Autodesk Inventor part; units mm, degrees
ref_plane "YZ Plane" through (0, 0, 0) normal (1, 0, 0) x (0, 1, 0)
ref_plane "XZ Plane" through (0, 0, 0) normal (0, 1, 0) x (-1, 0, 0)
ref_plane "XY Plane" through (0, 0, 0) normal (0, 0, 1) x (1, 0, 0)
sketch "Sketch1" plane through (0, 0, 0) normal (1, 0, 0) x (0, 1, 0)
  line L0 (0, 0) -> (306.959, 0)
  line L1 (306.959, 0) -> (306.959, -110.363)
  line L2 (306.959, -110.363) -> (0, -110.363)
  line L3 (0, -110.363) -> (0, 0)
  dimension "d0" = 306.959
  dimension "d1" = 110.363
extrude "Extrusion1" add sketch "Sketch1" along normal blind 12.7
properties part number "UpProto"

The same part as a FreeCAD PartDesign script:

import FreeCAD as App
import Part
import Sketcher

V = App.Vector
Q = App.Units.Quantity


def add_polygon(sketch, points):
    """Adds a closed chain of lines whose ends are joined by coincident constraints."""
    first, n = sketch.GeometryCount, len(points)
    for a, b in zip(points, points[1:] + points[:1]):
        sketch.addGeometry(Part.LineSegment(App.Vector(*a, 0), App.Vector(*b, 0)), False)
    for i in range(n):
        sketch.addConstraint(Sketcher.Constraint("Coincident", first + i, 2, first + (i + 1) % n, 1))

doc = App.newDocument("Part")
body = doc.addObject("PartDesign::Body", "Body")

sketch1 = doc.addObject("Sketcher::SketchObject", "Sketch")
body.addObject(sketch1)
sketch1.AttachmentSupport = (doc.YZ_Plane, [""])
sketch1.MapMode = "FlatFace"
add_polygon(sketch1, [(306.959, 0), (0, 0), (0, -110.363), (306.959, -110.363)])
sketch1.addConstraint([
    Sketcher.Constraint("Horizontal", 0),
    Sketcher.Constraint("Vertical", 1),
    Sketcher.Constraint("Horizontal", 2),
    Sketcher.Constraint("Vertical", 3),
    Sketcher.Constraint("Coincident", 0, 2, -1, 1),
    Sketcher.Constraint("DistanceX", 0, 2, 0, 1, Q("12.085 in")),
    Sketcher.Constraint("DistanceY", 1, 2, 1, 1, Q("4.345 in")),
])
pad1 = doc.addObject("PartDesign::Pad", "Pad")
body.addObject(pad1)
pad1.Profile = sketch1
pad1.Length = Q("0.5 in")

doc.recompute()
